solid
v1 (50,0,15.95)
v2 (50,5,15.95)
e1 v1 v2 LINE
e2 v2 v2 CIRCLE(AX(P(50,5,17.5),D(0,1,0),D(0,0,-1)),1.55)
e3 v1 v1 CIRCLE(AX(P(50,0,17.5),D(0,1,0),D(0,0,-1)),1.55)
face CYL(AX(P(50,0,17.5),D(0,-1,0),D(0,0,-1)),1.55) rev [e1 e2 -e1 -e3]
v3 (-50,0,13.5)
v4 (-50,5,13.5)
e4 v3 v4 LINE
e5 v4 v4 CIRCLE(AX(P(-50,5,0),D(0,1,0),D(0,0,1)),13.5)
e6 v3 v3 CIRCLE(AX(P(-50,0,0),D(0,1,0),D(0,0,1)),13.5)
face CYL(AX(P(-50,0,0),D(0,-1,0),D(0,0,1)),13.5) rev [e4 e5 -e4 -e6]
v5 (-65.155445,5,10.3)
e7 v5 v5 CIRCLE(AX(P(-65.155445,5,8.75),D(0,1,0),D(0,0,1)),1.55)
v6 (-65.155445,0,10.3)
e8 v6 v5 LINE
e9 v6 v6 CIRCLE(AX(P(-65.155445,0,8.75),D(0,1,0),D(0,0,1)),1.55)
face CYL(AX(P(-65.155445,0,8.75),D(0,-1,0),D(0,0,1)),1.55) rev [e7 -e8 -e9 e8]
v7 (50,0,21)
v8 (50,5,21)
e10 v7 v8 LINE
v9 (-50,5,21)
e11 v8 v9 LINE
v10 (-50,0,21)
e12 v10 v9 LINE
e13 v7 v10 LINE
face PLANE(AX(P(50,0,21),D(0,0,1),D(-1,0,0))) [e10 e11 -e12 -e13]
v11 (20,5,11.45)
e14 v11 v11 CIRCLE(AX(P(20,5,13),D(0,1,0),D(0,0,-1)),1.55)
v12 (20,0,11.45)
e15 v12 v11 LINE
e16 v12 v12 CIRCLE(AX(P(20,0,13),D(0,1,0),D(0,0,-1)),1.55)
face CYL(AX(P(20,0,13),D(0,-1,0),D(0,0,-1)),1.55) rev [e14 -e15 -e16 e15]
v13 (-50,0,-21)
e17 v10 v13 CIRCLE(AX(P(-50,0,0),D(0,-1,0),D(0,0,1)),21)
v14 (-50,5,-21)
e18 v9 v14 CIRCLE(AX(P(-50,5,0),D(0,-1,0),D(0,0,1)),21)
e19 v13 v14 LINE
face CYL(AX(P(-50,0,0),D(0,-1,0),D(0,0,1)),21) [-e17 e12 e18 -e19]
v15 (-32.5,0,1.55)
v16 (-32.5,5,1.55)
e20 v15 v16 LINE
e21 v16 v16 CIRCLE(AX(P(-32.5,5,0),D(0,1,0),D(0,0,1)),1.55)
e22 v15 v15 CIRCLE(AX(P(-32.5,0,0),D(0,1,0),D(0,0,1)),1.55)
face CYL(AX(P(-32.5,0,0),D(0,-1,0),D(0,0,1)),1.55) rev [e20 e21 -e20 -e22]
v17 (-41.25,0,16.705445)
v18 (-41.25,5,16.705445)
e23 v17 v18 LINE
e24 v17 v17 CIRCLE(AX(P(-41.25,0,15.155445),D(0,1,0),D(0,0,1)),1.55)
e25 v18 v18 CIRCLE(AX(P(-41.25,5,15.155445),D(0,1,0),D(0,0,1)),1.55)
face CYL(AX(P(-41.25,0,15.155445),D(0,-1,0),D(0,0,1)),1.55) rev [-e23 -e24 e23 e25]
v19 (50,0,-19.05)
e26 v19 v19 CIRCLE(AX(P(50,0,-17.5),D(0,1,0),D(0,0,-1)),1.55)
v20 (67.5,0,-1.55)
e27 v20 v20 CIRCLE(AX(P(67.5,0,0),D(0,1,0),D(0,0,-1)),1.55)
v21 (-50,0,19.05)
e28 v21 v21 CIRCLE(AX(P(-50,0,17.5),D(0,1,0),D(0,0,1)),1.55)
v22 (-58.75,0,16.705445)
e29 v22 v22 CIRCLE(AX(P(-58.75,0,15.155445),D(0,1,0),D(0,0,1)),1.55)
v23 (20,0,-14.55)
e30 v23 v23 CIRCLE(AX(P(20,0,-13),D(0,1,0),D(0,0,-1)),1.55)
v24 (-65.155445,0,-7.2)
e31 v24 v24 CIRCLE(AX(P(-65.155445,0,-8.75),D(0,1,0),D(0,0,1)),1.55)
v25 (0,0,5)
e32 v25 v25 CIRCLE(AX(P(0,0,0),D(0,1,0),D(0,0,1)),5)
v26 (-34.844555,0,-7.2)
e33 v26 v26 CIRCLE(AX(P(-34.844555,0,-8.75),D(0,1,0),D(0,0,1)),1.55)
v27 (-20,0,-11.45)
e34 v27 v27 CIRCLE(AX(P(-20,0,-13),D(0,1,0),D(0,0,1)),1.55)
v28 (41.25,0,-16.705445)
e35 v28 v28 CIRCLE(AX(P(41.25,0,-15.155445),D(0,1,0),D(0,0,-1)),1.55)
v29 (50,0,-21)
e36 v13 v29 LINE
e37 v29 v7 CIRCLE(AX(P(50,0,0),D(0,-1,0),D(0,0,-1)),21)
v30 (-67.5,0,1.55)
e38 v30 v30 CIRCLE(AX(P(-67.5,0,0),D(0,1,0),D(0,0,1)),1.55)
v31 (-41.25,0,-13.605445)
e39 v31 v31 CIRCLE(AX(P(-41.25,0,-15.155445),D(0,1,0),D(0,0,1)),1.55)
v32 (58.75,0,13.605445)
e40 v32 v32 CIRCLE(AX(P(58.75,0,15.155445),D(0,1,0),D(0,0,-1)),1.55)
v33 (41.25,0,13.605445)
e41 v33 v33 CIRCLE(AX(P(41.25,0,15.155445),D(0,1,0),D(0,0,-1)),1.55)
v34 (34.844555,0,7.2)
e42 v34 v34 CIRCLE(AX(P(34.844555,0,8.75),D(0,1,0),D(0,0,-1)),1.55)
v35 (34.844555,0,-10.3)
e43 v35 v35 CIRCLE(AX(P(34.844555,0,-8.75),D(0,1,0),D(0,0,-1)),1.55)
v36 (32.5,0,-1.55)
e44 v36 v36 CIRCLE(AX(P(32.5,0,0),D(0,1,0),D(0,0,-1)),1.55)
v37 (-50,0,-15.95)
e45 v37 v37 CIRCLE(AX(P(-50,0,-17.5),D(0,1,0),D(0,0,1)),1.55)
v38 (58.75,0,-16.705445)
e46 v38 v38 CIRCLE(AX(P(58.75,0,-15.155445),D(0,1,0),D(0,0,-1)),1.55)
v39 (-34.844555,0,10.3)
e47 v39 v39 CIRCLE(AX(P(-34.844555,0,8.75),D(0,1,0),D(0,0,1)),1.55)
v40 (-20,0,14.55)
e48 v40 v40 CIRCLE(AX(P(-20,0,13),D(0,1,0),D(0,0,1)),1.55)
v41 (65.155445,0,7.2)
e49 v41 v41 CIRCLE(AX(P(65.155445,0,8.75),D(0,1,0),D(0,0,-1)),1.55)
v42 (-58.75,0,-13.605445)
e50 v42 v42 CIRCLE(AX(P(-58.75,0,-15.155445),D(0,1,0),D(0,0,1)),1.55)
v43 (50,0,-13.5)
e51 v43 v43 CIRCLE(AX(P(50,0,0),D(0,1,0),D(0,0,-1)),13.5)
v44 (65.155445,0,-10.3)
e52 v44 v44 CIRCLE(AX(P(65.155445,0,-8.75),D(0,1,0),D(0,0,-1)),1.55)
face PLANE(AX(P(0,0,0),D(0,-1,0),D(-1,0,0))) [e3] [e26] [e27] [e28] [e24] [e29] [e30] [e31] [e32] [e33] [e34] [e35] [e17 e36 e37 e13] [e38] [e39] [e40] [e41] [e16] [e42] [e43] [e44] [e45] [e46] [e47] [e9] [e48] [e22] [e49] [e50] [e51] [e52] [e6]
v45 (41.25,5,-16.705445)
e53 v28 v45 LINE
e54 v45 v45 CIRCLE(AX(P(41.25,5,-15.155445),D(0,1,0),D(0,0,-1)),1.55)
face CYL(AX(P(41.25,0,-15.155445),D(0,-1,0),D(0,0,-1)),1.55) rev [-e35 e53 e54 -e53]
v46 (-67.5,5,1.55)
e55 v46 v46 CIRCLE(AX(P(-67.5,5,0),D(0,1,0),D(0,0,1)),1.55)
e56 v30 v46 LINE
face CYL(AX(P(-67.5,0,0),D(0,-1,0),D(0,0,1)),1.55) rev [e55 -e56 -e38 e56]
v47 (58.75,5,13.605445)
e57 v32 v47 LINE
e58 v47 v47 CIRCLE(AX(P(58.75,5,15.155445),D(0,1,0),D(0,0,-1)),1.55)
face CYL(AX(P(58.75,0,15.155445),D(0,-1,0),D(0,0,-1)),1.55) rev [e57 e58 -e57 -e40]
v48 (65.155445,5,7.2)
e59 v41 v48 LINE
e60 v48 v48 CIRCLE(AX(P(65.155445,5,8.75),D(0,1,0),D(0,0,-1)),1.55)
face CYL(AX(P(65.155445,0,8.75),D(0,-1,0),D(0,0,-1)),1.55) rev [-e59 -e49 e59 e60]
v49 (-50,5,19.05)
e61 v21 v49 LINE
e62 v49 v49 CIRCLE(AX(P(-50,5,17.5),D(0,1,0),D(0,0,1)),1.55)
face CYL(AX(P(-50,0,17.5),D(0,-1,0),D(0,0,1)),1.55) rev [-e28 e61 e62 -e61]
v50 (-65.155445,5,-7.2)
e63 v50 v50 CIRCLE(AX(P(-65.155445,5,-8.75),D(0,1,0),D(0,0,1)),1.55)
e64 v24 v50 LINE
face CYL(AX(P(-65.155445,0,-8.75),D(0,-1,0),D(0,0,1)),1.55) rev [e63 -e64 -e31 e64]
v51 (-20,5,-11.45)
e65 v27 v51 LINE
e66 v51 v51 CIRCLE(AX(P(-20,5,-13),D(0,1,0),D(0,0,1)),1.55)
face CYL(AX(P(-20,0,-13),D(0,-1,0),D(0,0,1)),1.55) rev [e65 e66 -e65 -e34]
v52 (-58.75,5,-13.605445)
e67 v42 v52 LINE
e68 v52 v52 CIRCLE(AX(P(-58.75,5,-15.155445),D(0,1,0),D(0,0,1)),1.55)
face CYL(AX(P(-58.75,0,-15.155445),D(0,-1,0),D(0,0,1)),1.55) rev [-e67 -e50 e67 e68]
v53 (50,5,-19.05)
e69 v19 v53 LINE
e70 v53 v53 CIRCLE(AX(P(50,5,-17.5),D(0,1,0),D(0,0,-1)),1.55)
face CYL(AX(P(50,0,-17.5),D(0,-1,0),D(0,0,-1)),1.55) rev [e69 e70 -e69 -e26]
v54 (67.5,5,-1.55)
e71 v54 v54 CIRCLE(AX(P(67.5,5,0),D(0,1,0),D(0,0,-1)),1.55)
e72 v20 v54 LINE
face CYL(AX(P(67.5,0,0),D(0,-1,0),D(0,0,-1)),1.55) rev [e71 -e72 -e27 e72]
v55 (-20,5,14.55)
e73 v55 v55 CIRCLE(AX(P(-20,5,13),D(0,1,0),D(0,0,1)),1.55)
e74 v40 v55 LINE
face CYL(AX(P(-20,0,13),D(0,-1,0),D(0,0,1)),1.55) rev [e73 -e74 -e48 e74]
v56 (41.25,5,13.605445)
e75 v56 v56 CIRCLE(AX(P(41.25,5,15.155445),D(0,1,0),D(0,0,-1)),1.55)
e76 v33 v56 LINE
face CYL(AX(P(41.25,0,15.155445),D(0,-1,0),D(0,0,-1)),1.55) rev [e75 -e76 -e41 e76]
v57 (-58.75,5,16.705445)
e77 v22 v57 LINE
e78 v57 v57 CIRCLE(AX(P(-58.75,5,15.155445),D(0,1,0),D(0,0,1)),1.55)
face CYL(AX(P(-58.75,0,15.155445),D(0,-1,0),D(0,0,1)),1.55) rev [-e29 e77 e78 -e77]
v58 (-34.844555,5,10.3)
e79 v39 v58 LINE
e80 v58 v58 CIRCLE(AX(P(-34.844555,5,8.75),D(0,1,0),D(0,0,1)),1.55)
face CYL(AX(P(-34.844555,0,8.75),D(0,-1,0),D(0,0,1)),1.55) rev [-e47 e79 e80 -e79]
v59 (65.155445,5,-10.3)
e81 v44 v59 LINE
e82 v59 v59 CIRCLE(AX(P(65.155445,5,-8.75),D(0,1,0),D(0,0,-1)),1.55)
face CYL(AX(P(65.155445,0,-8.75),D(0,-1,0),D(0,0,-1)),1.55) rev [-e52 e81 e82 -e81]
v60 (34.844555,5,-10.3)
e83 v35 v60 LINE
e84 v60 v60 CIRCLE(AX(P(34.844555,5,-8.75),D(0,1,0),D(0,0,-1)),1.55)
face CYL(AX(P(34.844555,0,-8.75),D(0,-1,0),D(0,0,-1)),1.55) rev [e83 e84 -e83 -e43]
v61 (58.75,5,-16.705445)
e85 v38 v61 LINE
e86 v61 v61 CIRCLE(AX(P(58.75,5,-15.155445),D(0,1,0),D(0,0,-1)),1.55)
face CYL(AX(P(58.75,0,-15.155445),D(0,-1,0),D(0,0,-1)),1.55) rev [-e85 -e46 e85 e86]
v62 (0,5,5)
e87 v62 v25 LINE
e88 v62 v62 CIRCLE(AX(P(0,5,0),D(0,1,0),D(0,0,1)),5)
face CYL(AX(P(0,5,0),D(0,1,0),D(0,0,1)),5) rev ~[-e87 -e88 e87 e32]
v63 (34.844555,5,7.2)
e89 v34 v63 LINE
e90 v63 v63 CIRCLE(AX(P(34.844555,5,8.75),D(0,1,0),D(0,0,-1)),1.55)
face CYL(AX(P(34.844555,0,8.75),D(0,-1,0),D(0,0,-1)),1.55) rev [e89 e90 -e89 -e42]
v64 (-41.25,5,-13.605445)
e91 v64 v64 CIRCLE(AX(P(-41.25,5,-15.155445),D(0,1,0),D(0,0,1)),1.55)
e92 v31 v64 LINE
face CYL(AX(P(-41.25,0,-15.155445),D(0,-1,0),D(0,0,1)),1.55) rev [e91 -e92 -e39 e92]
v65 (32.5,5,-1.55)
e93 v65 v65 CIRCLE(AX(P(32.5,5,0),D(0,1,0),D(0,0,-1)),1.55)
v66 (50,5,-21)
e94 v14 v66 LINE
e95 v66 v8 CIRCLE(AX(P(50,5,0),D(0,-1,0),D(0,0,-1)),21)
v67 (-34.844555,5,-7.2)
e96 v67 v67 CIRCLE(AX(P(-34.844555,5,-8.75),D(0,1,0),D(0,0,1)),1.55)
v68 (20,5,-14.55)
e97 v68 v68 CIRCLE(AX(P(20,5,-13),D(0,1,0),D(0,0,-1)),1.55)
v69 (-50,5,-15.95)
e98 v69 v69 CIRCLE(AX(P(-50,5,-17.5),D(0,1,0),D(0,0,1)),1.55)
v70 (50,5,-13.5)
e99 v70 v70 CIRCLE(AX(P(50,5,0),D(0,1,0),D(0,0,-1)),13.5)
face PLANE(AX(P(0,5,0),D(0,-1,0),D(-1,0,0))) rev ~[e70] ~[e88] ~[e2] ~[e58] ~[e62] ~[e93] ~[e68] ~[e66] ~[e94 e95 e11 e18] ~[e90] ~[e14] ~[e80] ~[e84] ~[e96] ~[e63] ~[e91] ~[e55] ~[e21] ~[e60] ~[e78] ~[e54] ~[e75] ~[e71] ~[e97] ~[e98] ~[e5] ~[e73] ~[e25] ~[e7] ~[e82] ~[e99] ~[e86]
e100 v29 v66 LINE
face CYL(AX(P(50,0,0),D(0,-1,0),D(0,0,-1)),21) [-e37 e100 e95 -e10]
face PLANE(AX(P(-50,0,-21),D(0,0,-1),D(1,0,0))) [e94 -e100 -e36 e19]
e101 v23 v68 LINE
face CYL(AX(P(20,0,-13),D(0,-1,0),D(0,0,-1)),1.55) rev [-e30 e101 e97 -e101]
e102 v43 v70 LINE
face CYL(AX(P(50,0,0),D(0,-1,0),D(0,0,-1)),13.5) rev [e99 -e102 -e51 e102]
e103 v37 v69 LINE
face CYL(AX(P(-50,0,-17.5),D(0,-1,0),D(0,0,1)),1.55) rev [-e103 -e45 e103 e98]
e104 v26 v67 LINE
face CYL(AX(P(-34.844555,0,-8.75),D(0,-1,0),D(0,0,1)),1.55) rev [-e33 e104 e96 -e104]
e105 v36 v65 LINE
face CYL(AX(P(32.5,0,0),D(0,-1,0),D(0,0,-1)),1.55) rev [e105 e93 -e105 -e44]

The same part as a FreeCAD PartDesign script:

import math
import FreeCAD as App
import Part
import Sketcher

V = App.Vector

doc = App.newDocument("Part")
body = doc.addObject("PartDesign::Body", "Body")

sketch1 = body.newObject("Sketcher::SketchObject", "Sketch")
sketch1.AttachmentSupport = (doc.getObject("XZ_Plane"), [""])
sketch1.MapMode = "FlatFace"
sketch1.addGeometry([
    Part.LineSegment(V(50, -21, 0), V(-50, -21, 0)),
    Part.ArcOfCircle(Part.Circle(V(-50, 0, 0), V(0, 0, 1), 21), math.radians(90), math.radians(270)),
    Part.LineSegment(V(-50, 21, 0), V(50, 21, 0)),
    Part.ArcOfCircle(Part.Circle(V(50, 0, 0), V(0, 0, 1), 21), math.radians(-90), math.radians(90)),
    Part.Circle(V(58.75, 15.155445, 0), V(0, 0, 1), 1.55),
    Part.Circle(V(50, 17.5, 0), V(0, 0, 1), 1.55),
    Part.Circle(V(41.25, 15.155445, 0), V(0, 0, 1), 1.55),
    Part.Circle(V(20, 13, 0), V(0, 0, 1), 1.55),
    Part.Circle(V(65.155445, 8.75, 0), V(0, 0, 1), 1.55),
    Part.Circle(V(34.844555, 8.75, 0), V(0, 0, 1), 1.55),
    Part.Circle(V(-20, 13, 0), V(0, 0, 1), 1.55),
    Part.Circle(V(-50, 17.5, 0), V(0, 0, 1), 1.55),
    Part.Circle(V(-41.25, 15.155445, 0), V(0, 0, 1), 1.55),
    Part.Circle(V(-58.75, 15.155445, 0), V(0, 0, 1), 1.55),
    Part.Circle(V(-34.844555, 8.75, 0), V(0, 0, 1), 1.55),
    Part.Circle(V(-65.155445, 8.75, 0), V(0, 0, 1), 1.55),
    Part.Circle(V(67.5, 0, 0), V(0, 0, 1), 1.55),
    Part.Circle(V(50, 0, 0), V(0, 0, 1), 13.5),
    Part.Circle(V(65.155445, -8.75, 0), V(0, 0, 1), 1.55),
    Part.Circle(V(34.844555, -8.75, 0), V(0, 0, 1), 1.55),
    Part.Circle(V(32.5, 0, 0), V(0, 0, 1), 1.55),
    Part.Circle(V(58.75, -15.155445, 0), V(0, 0, 1), 1.55),
    Part.Circle(V(41.25, -15.155445, 0), V(0, 0, 1), 1.55),
    Part.Circle(V(50, -17.5, 0), V(0, 0, 1), 1.55),
    Part.Circle(V(20, -13, 0), V(0, 0, 1), 1.55),
    Part.Circle(V(-32.5, 0, 0), V(0, 0, 1), 1.55),
    Part.Circle(V(-50, 0, 0), V(0, 0, 1), 13.5),
    Part.Circle(V(-67.5, 0, 0), V(0, 0, 1), 1.55),
    Part.Circle(V(-34.844555, -8.75, 0), V(0, 0, 1), 1.55),
    Part.Circle(V(-65.155445, -8.75, 0), V(0, 0, 1), 1.55),
    Part.Circle(V(-20, -13, 0), V(0, 0, 1), 1.55),
    Part.Circle(V(-41.25, -15.155445, 0), V(0, 0, 1), 1.55),
    Part.Circle(V(-50, -17.5, 0), V(0, 0, 1), 1.55),
    Part.Circle(V(-58.75, -15.155445, 0), V(0, 0, 1), 1.55),
], False)
sketch1.addConstraint([
    Sketcher.Constraint("Tangent", 0, 2, 1, 2),
    Sketcher.Constraint("Tangent", 1, 1, 2, 1),
    Sketcher.Constraint("Tangent", 2, 2, 3, 2),
    Sketcher.Constraint("Tangent", 3, 1, 0, 1),
    Sketcher.Constraint("Horizontal", 0),
    Sketcher.Constraint("Horizontal", 2),
    Sketcher.Constraint("Coincident", 17, 3, 3, 3),
    Sketcher.Constraint("Coincident", 26, 3, 1, 3),
    Sketcher.Constraint("Equal", 4, 5),
    Sketcher.Constraint("Equal", 5, 6),
    Sketcher.Constraint("Equal", 6, 7),
    Sketcher.Constraint("Equal", 7, 8),
    Sketcher.Constraint("Equal", 8, 9),
    Sketcher.Constraint("Equal", 9, 10),
    Sketcher.Constraint("Equal", 10, 11),
    Sketcher.Constraint("Equal", 11, 12),
    Sketcher.Constraint("Equal", 12, 13),
    Sketcher.Constraint("Equal", 13, 14),
    Sketcher.Constraint("Equal", 14, 15),
    Sketcher.Constraint("Equal", 15, 16),
    Sketcher.Constraint("Equal", 16, 18),
    Sketcher.Constraint("Equal", 18, 19),
    Sketcher.Constraint("Equal", 19, 20),
    Sketcher.Constraint("Equal", 20, 21),
    Sketcher.Constraint("Equal", 21, 22),
    Sketcher.Constraint("Equal", 22, 23),
    Sketcher.Constraint("Equal", 23, 24),
    Sketcher.Constraint("Equal", 24, 25),
    Sketcher.Constraint("Equal", 17, 26),
    Sketcher.Constraint("Equal", 25, 27),
    Sketcher.Constraint("Equal", 27, 28),
    Sketcher.Constraint("Equal", 28, 29),
    Sketcher.Constraint("Equal", 29, 30),
    Sketcher.Constraint("Equal", 30, 31),
    Sketcher.Constraint("Equal", 31, 32),
    Sketcher.Constraint("Equal", 32, 33),
    Sketcher.Constraint("Symmetric", 1, 3, 3, 3, -1, 1),
    Sketcher.Constraint("Symmetric", 15, 3, 18, 3, -1, 1),
    Sketcher.Constraint("Symmetric", 14, 3, 19, 3, -1, 1),
    Sketcher.Constraint("Symmetric", 13, 3, 21, 3, -1, 1),
    Sketcher.Constraint("Symmetric", 12, 3, 22, 3, -1, 1),
    Sketcher.Constraint("Symmetric", 11, 3, 23, 3, -1, 1),
    Sketcher.Constraint("Symmetric", 10, 3, 24, 3, -1, 1),
    Sketcher.Constraint("Symmetric", 20, 3, 25, 3, -1, 1),
    Sketcher.Constraint("Symmetric", 16, 3, 27, 3, -1, 1),
    Sketcher.Constraint("Symmetric", 9, 3, 28, 3, -1, 1),
    Sketcher.Constraint("Symmetric", 8, 3, 29, 3, -1, 1),
    Sketcher.Constraint("Symmetric", 7, 3, 30, 3, -1, 1),
    Sketcher.Constraint("Symmetric", 6, 3, 31, 3, -1, 1),
    Sketcher.Constraint("Symmetric", 5, 3, 32, 3, -1, 1),
    Sketcher.Constraint("Symmetric", 4, 3, 33, 3, -1, 1),
    Sketcher.Constraint("Symmetric", 7, 3, 10, 3, -2),
    Sketcher.Constraint("Symmetric", 5, 3, 11, 3, -2),
    Sketcher.Constraint("Symmetric", 6, 3, 12, 3, -2),
    Sketcher.Constraint("Symmetric", 4, 3, 13, 3, -2),
    Sketcher.Constraint("Symmetric", 9, 3, 14, 3, -2),
    Sketcher.Constraint("Symmetric", 8, 3, 15, 3, -2),
    Sketcher.Constraint("PointOnObject", 16, 3, -1),
    Sketcher.Constraint("PointOnObject", 20, 3, -1),
    Sketcher.Constraint("Horizontal", 4, 3, 6, 3),
    Sketcher.Constraint("Horizontal", 8, 3, 9, 3),
    Sketcher.Constraint("Vertical", 3, 3, 5, 3),
    Sketcher.Constraint("Diameter", 17, 27.0),
    Sketcher.Constraint("Radius", 1, 21.0),
    Sketcher.Constraint("Diameter", 4, 3.1),
    Sketcher.Constraint("DistanceX", 0, 2, 0, 1, 100.0),
    Sketcher.Constraint("DistanceX", -1, 1, 7, 3, 20.0),
    Sketcher.Constraint("DistanceY", -1, 1, 7, 3, 13.0),
    Sketcher.Constraint("DistanceY", -1, 1, 5, 3, 17.5),
    Sketcher.Constraint("DistanceX", -1, 1, 16, 3, 67.5),
    Sketcher.Constraint("DistanceX", -1, 1, 20, 3, 32.5),
    Sketcher.Constraint("DistanceX", 6, 3, 4, 3, 17.5),
    Sketcher.Constraint("DistanceY", 18, 3, 8, 3, 17.5),
    Sketcher.Constraint("DistanceX", -1, 1, 4, 3, 58.75),
    Sketcher.Constraint("DistanceX", 15, 3, 14, 3, 30.310889),
    Sketcher.Constraint("DistanceY", -1, 1, 4, 3, 15.155445),
    Sketcher.Constraint("DistanceX", -1, 1, 8, 3, 65.155445),
])
pad1 = body.newObject("PartDesign::Pad", "Pad")
pad1.Profile = sketch1
pad1.Length = 5
pad1.Reversed = True

sketch2 = body.newObject("Sketcher::SketchObject", "Sketch001")
sketch2.AttachmentSupport = (doc.getObject("XZ_Plane"), [""])
sketch2.MapMode = "FlatFace"
sketch2.AttachmentOffset = App.Placement(V(0, 0, -5), App.Rotation())
sketch2.addGeometry(Part.Circle(V(0, 0, 0), V(0, 0, 1), 5), False)
sketch2.addConstraint([
    Sketcher.Constraint("Coincident", 0, 3, -1, 1),
    Sketcher.Constraint("Diameter", 0, 10.0),
])
pocket1 = body.newObject("PartDesign::Pocket", "Pocket")
pocket1.Profile = sketch2
pocket1.Length = 5
pocket1.Reversed = True

doc.recompute()
